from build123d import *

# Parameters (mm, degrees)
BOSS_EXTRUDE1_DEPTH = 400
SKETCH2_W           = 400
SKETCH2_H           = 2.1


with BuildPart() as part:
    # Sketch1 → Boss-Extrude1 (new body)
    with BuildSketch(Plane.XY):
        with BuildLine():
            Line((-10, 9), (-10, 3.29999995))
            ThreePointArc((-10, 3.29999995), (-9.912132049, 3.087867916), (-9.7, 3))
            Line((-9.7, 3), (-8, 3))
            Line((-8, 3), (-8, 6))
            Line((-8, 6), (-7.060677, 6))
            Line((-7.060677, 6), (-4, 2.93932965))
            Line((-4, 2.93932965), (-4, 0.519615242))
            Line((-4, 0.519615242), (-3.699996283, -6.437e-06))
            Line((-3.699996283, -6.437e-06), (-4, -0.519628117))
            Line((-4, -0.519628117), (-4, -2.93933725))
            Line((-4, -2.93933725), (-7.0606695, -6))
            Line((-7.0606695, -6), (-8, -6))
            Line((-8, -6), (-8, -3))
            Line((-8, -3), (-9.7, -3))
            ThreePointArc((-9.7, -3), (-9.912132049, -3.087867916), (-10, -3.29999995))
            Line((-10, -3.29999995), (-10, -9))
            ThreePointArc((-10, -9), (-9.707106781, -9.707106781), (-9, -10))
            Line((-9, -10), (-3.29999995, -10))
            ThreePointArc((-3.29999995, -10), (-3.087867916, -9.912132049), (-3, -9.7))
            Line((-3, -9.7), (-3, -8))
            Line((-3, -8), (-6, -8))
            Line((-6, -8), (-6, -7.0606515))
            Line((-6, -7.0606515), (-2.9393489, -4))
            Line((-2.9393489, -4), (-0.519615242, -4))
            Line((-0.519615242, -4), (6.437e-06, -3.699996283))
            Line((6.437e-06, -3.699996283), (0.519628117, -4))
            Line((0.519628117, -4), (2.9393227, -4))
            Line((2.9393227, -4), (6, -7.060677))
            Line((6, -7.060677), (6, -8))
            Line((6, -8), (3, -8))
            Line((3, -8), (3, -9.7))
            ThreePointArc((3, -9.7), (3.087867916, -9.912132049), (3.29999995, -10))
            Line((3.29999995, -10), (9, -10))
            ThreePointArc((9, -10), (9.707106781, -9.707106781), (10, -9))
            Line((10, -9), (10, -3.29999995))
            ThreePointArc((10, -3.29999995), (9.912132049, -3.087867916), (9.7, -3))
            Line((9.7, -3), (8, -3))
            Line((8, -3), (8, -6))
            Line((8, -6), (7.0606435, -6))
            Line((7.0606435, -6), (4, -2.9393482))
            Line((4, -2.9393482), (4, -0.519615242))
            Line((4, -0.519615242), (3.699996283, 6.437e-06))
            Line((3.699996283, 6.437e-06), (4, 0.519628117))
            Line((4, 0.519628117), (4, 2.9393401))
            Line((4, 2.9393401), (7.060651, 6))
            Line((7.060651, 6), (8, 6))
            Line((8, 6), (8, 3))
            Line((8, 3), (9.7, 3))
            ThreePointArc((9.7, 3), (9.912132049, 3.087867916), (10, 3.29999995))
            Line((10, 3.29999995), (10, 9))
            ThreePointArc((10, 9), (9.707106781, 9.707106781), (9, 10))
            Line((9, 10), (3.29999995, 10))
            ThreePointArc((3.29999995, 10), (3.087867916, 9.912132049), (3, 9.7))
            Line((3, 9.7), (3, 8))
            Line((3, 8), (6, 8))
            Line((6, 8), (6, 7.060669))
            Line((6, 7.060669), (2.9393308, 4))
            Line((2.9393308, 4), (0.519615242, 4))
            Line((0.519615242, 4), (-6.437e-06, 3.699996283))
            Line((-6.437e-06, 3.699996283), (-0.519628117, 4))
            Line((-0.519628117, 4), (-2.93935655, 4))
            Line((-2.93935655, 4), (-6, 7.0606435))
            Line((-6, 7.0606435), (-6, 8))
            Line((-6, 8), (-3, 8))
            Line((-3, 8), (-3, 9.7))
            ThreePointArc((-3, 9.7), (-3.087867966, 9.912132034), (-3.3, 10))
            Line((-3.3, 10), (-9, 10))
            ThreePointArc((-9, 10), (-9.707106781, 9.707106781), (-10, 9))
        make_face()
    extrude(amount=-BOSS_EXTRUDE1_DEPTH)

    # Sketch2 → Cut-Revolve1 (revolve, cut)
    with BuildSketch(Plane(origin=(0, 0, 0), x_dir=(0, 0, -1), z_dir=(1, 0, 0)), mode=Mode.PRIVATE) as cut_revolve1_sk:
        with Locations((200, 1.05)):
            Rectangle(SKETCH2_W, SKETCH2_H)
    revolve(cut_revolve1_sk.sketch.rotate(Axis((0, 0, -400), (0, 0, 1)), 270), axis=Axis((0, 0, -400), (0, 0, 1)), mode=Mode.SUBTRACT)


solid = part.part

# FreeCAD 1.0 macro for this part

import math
import FreeCAD as App
import Part
import Sketcher
from FreeCAD import Vector
Q = App.Units.Quantity

doc = App.newDocument("Part")
body = doc.addObject("PartDesign::Body", "Body")

# Sketch on XY plane
sketch1 = body.newObject("Sketcher::SketchObject", "Sketch")
sketch1.AttachmentSupport = (doc.getObject("XY_Plane"), [""])
sketch1.MapMode = "FlatFace"
sketch1.addGeometry(Part.LineSegment(Vector(-10, 9, 0), Vector(-10, 3.3, 0)), False)
sketch1.addGeometry(Part.ArcOfCircle(Part.Circle(Vector(-9.7, 3.3, 0), Vector(0, 0, 1), 0.3), math.radians(180), math.radians(270)), False)
sketch1.addGeometry(Part.LineSegment(Vector(-9.7, 3, 0), Vector(-8, 3, 0)), False)
sketch1.addGeometry(Part.LineSegment(Vector(-8, 3, 0), Vector(-8, 6, 0)), False)
sketch1.addGeometry(Part.LineSegment(Vector(-8, 6, 0), Vector(-7.06, 6, 0)), False)
sketch1.addGeometry(Part.LineSegment(Vector(-7.06, 6, 0), Vector(-4, 2.94, 0)), False)
sketch1.addGeometry(Part.LineSegment(Vector(-4, 2.94, 0), Vector(-4, 0.52, 0)), False)
sketch1.addGeometry(Part.LineSegment(Vector(-4, 0.52, 0), Vector(-3.7, 0, 0)), False)
sketch1.addGeometry(Part.LineSegment(Vector(-3.7, 0, 0), Vector(-4, -0.52, 0)), False)
sketch1.addGeometry(Part.LineSegment(Vector(-4, -0.52, 0), Vector(-4, -2.94, 0)), False)
sketch1.addGeometry(Part.LineSegment(Vector(-4, -2.94, 0), Vector(-7.06, -6, 0)), False)
sketch1.addGeometry(Part.LineSegment(Vector(-7.06, -6, 0), Vector(-8, -6, 0)), False)
sketch1.addGeometry(Part.LineSegment(Vector(-8, -6, 0), Vector(-8, -3, 0)), False)
sketch1.addGeometry(Part.LineSegment(Vector(-8, -3, 0), Vector(-9.7, -3, 0)), False)
sketch1.addGeometry(Part.ArcOfCircle(Part.Circle(Vector(-9.7, -3.3, 0), Vector(0, 0, 1), 0.3), math.radians(90), math.radians(180)), False)
sketch1.addGeometry(Part.LineSegment(Vector(-10, -3.3, 0), Vector(-10, -9, 0)), False)
sketch1.addGeometry(Part.ArcOfCircle(Part.Circle(Vector(-9, -9, 0), Vector(0, 0, 1), 1), math.radians(-180), math.radians(-90)), False)
sketch1.addGeometry(Part.LineSegment(Vector(-9, -10, 0), Vector(-3.3, -10, 0)), False)
sketch1.addGeometry(Part.ArcOfCircle(Part.Circle(Vector(-3.3, -9.7, 0), Vector(0, 0, 1), 0.3), math.radians(-90), math.radians(0)), False)
sketch1.addGeometry(Part.LineSegment(Vector(-3, -9.7, 0), Vector(-3, -8, 0)), False)
sketch1.addGeometry(Part.LineSegment(Vector(-3, -8, 0), Vector(-6, -8, 0)), False)
sketch1.addGeometry(Part.LineSegment(Vector(-6, -8, 0), Vector(-6, -7.06, 0)), False)
sketch1.addGeometry(Part.LineSegment(Vector(-6, -7.06, 0), Vector(-2.94, -4, 0)), False)
sketch1.addGeometry(Part.LineSegment(Vector(-2.94, -4, 0), Vector(-0.52, -4, 0)), False)
sketch1.addGeometry(Part.LineSegment(Vector(-0.52, -4, 0), Vector(0, -3.7, 0)), False)
sketch1.addGeometry(Part.LineSegment(Vector(0, -3.7, 0), Vector(0.52, -4, 0)), False)
sketch1.addGeometry(Part.LineSegment(Vector(0.52, -4, 0), Vector(2.94, -4, 0)), False)
sketch1.addGeometry(Part.LineSegment(Vector(2.94, -4, 0), Vector(6, -7.06, 0)), False)
sketch1.addGeometry(Part.LineSegment(Vector(6, -7.06, 0), Vector(6, -8, 0)), False)
sketch1.addGeometry(Part.LineSegment(Vector(6, -8, 0), Vector(3, -8, 0)), False)
sketch1.addGeometry(Part.LineSegment(Vector(3, -8, 0), Vector(3, -9.7, 0)), False)
sketch1.addGeometry(Part.ArcOfCircle(Part.Circle(Vector(3.3, -9.7, 0), Vector(0, 0, 1), 0.3), math.radians(180), math.radians(270)), False)
sketch1.addGeometry(Part.LineSegment(Vector(3.3, -10, 0), Vector(9, -10, 0)), False)
sketch1.addGeometry(Part.ArcOfCircle(Part.Circle(Vector(9, -9, 0), Vector(0, 0, 1), 1), math.radians(-90), math.radians(0)), False)
sketch1.addGeometry(Part.LineSegment(Vector(10, -9, 0), Vector(10, -3.3, 0)), False)
sketch1.addGeometry(Part.ArcOfCircle(Part.Circle(Vector(9.7, -3.3, 0), Vector(0, 0, 1), 0.3), math.radians(0), math.radians(90)), False)
sketch1.addGeometry(Part.LineSegment(Vector(9.7, -3, 0), Vector(8, -3, 0)), False)
sketch1.addGeometry(Part.LineSegment(Vector(8, -3, 0), Vector(8, -6, 0)), False)
sketch1.addGeometry(Part.LineSegment(Vector(8, -6, 0), Vector(7.06, -6, 0)), False)
sketch1.addGeometry(Part.LineSegment(Vector(7.06, -6, 0), Vector(4, -2.94, 0)), False)
sketch1.addGeometry(Part.LineSegment(Vector(4, -2.94, 0), Vector(4, -0.52, 0)), False)
sketch1.addGeometry(Part.LineSegment(Vector(4, -0.52, 0), Vector(3.7, 0, 0)), False)
sketch1.addGeometry(Part.LineSegment(Vector(3.7, 0, 0), Vector(4, 0.52, 0)), False)
sketch1.addGeometry(Part.LineSegment(Vector(4, 0.52, 0), Vector(4, 2.94, 0)), False)
sketch1.addGeometry(Part.LineSegment(Vector(4, 2.94, 0), Vector(7.06, 6, 0)), False)
sketch1.addGeometry(Part.LineSegment(Vector(7.06, 6, 0), Vector(8, 6, 0)), False)
sketch1.addGeometry(Part.LineSegment(Vector(8, 6, 0), Vector(8, 3, 0)), False)
sketch1.addGeometry(Part.LineSegment(Vector(8, 3, 0), Vector(9.7, 3, 0)), False)
sketch1.addGeometry(Part.ArcOfCircle(Part.Circle(Vector(9.7, 3.3, 0), Vector(0, 0, 1), 0.3), math.radians(-90), math.radians(0)), False)
sketch1.addGeometry(Part.LineSegment(Vector(10, 3.3, 0), Vector(10, 9, 0)), False)
sketch1.addGeometry(Part.ArcOfCircle(Part.Circle(Vector(9, 9, 0), Vector(0, 0, 1), 1), math.radians(0), math.radians(90)), False)
sketch1.addGeometry(Part.LineSegment(Vector(9, 10, 0), Vector(3.3, 10, 0)), False)
sketch1.addGeometry(Part.ArcOfCircle(Part.Circle(Vector(3.3, 9.7, 0), Vector(0, 0, 1), 0.3), math.radians(90), math.radians(180)), False)
sketch1.addGeometry(Part.LineSegment(Vector(3, 9.7, 0), Vector(3, 8, 0)), False)
sketch1.addGeometry(Part.LineSegment(Vector(3, 8, 0), Vector(6, 8, 0)), False)
sketch1.addGeometry(Part.LineSegment(Vector(6, 8, 0), Vector(6, 7.06, 0)), False)
sketch1.addGeometry(Part.LineSegment(Vector(6, 7.06, 0), Vector(2.94, 4, 0)), False)
sketch1.addGeometry(Part.LineSegment(Vector(2.94, 4, 0), Vector(0.52, 4, 0)), False)
sketch1.addGeometry(Part.LineSegment(Vector(0.52, 4, 0), Vector(0, 3.7, 0)), False)
sketch1.addGeometry(Part.LineSegment(Vector(0, 3.7, 0), Vector(-0.52, 4, 0)), False)
sketch1.addGeometry(Part.LineSegment(Vector(-0.52, 4, 0), Vector(-2.94, 4, 0)), False)
sketch1.addGeometry(Part.LineSegment(Vector(-2.94, 4, 0), Vector(-6, 7.06, 0)), False)
sketch1.addGeometry(Part.LineSegment(Vector(-6, 7.06, 0), Vector(-6, 8, 0)), False)
sketch1.addGeometry(Part.LineSegment(Vector(-6, 8, 0), Vector(-3, 8, 0)), False)
sketch1.addGeometry(Part.LineSegment(Vector(-3, 8, 0), Vector(-3, 9.7, 0)), False)
sketch1.addGeometry(Part.ArcOfCircle(Part.Circle(Vector(-3.3, 9.7, 0), Vector(0, 0, 1), 0.3), math.radians(0), math.radians(90)), False)
sketch1.addGeometry(Part.LineSegment(Vector(-3.3, 10, 0), Vector(-9, 10, 0)), False)
sketch1.addGeometry(Part.ArcOfCircle(Part.Circle(Vector(-9, 9, 0), Vector(0, 0, 1), 1), math.radians(90), math.radians(180)), False)
sketch1.addConstraint(Sketcher.Constraint("Tangent", 0, 2, 1, 1))
sketch1.addConstraint(Sketcher.Constraint("Tangent", 1, 2, 2, 1))
sketch1.addConstraint(Sketcher.Constraint("Coincident", 2, 2, 3, 1))
sketch1.addConstraint(Sketcher.Constraint("Coincident", 3, 2, 4, 1))
sketch1.addConstraint(Sketcher.Constraint("Coincident", 4, 2, 5, 1))
sketch1.addConstraint(Sketcher.Constraint("Coincident", 5, 2, 6, 1))
sketch1.addConstraint(Sketcher.Constraint("Coincident", 6, 2, 7, 1))
sketch1.addConstraint(Sketcher.Constraint("Coincident", 7, 2, 8, 1))
sketch1.addConstraint(Sketcher.Constraint("Coincident", 8, 2, 9, 1))
sketch1.addConstraint(Sketcher.Constraint("Coincident", 9, 2, 10, 1))
sketch1.addConstraint(Sketcher.Constraint("Coincident", 10, 2, 11, 1))
sketch1.addConstraint(Sketcher.Constraint("Coincident", 11, 2, 12, 1))
sketch1.addConstraint(Sketcher.Constraint("Coincident", 12, 2, 13, 1))
sketch1.addConstraint(Sketcher.Constraint("Tangent", 13, 2, 14, 1))
sketch1.addConstraint(Sketcher.Constraint("Tangent", 14, 2, 15, 1))
sketch1.addConstraint(Sketcher.Constraint("Tangent", 15, 2, 16, 1))
sketch1.addConstraint(Sketcher.Constraint("Tangent", 16, 2, 17, 1))
sketch1.addConstraint(Sketcher.Constraint("Tangent", 17, 2, 18, 1))
sketch1.addConstraint(Sketcher.Constraint("Tangent", 18, 2, 19, 1))
sketch1.addConstraint(Sketcher.Constraint("Coincident", 19, 2, 20, 1))
sketch1.addConstraint(Sketcher.Constraint("Coincident", 20, 2, 21, 1))
sketch1.addConstraint(Sketcher.Constraint("Coincident", 21, 2, 22, 1))
sketch1.addConstraint(Sketcher.Constraint("Coincident", 22, 2, 23, 1))
sketch1.addConstraint(Sketcher.Constraint("Coincident", 23, 2, 24, 1))
sketch1.addConstraint(Sketcher.Constraint("Coincident", 24, 2, 25, 1))
sketch1.addConstraint(Sketcher.Constraint("Coincident", 25, 2, 26, 1))
sketch1.addConstraint(Sketcher.Constraint("Coincident", 26, 2, 27, 1))
sketch1.addConstraint(Sketcher.Constraint("Coincident", 27, 2, 28, 1))
sketch1.addConstraint(Sketcher.Constraint("Coincident", 28, 2, 29, 1))
sketch1.addConstraint(Sketcher.Constraint("Coincident", 29, 2, 30, 1))
sketch1.addConstraint(Sketcher.Constraint("Tangent", 30, 2, 31, 1))
sketch1.addConstraint(Sketcher.Constraint("Tangent", 31, 2, 32, 1))
sketch1.addConstraint(Sketcher.Constraint("Tangent", 32, 2, 33, 1))
sketch1.addConstraint(Sketcher.Constraint("Tangent", 33, 2, 34, 1))
sketch1.addConstraint(Sketcher.Constraint("Tangent", 34, 2, 35, 1))
sketch1.addConstraint(Sketcher.Constraint("Tangent", 35, 2, 36, 1))
sketch1.addConstraint(Sketcher.Constraint("Coincident", 36, 2, 37, 1))
sketch1.addConstraint(Sketcher.Constraint("Coincident", 37, 2, 38, 1))
sketch1.addConstraint(Sketcher.Constraint("Coincident", 38, 2, 39, 1))
sketch1.addConstraint(Sketcher.Constraint("Coincident", 39, 2, 40, 1))
sketch1.addConstraint(Sketcher.Constraint("Coincident", 40, 2, 41, 1))
sketch1.addConstraint(Sketcher.Constraint("Coincident", 41, 2, 42, 1))
sketch1.addConstraint(Sketcher.Constraint("Coincident", 42, 2, 43, 1))
sketch1.addConstraint(Sketcher.Constraint("Coincident", 43, 2, 44, 1))
sketch1.addConstraint(Sketcher.Constraint("Coincident", 44, 2, 45, 1))
sketch1.addConstraint(Sketcher.Constraint("Coincident", 45, 2, 46, 1))
sketch1.addConstraint(Sketcher.Constraint("Coincident", 46, 2, 47, 1))
sketch1.addConstraint(Sketcher.Constraint("Tangent", 47, 2, 48, 1))
sketch1.addConstraint(Sketcher.Constraint("Tangent", 48, 2, 49, 1))
sketch1.addConstraint(Sketcher.Constraint("Tangent", 49, 2, 50, 1))
sketch1.addConstraint(Sketcher.Constraint("Tangent", 50, 2, 51, 1))
sketch1.addConstraint(Sketcher.Constraint("Tangent", 51, 2, 52, 1))
sketch1.addConstraint(Sketcher.Constraint("Tangent", 52, 2, 53, 1))
sketch1.addConstraint(Sketcher.Constraint("Coincident", 53, 2, 54, 1))
sketch1.addConstraint(Sketcher.Constraint("Coincident", 54, 2, 55, 1))
sketch1.addConstraint(Sketcher.Constraint("Coincident", 55, 2, 56, 1))
sketch1.addConstraint(Sketcher.Constraint("Coincident", 56, 2, 57, 1))
sketch1.addConstraint(Sketcher.Constraint("Coincident", 57, 2, 58, 1))
sketch1.addConstraint(Sketcher.Constraint("Coincident", 58, 2, 59, 1))
sketch1.addConstraint(Sketcher.Constraint("Coincident", 59, 2, 60, 1))
sketch1.addConstraint(Sketcher.Constraint("Coincident", 60, 2, 61, 1))
sketch1.addConstraint(Sketcher.Constraint("Coincident", 61, 2, 62, 1))
sketch1.addConstraint(Sketcher.Constraint("Coincident", 62, 2, 63, 1))
sketch1.addConstraint(Sketcher.Constraint("Coincident", 63, 2, 64, 1))
sketch1.addConstraint(Sketcher.Constraint("Tangent", 64, 2, 65, 1))
sketch1.addConstraint(Sketcher.Constraint("Tangent", 65, 2, 66, 1))
sketch1.addConstraint(Sketcher.Constraint("Tangent", 66, 2, 67, 1))
sketch1.addConstraint(Sketcher.Constraint("Tangent", 67, 2, 0, 1))
sketch1.addConstraint(Sketcher.Constraint("Vertical", 0))
sketch1.addConstraint(Sketcher.Constraint("Horizontal", 2))
sketch1.addConstraint(Sketcher.Constraint("Vertical", 3))
sketch1.addConstraint(Sketcher.Constraint("Horizontal", 4))
sketch1.addConstraint(Sketcher.Constraint("Vertical", 6))
sketch1.addConstraint(Sketcher.Constraint("Vertical", 9))
sketch1.addConstraint(Sketcher.Constraint("Horizontal", 11))
sketch1.addConstraint(Sketcher.Constraint("Vertical", 12))
sketch1.addConstraint(Sketcher.Constraint("Horizontal", 13))
sketch1.addConstraint(Sketcher.Constraint("Vertical", 15))
sketch1.addConstraint(Sketcher.Constraint("Horizontal", 17))
sketch1.addConstraint(Sketcher.Constraint("Vertical", 19))
sketch1.addConstraint(Sketcher.Constraint("Horizontal", 20))
sketch1.addConstraint(Sketcher.Constraint("Vertical", 21))
sketch1.addConstraint(Sketcher.Constraint("Horizontal", 23))
sketch1.addConstraint(Sketcher.Constraint("Horizontal", 26))
sketch1.addConstraint(Sketcher.Constraint("Vertical", 28))
sketch1.addConstraint(Sketcher.Constraint("Horizontal", 29))
sketch1.addConstraint(Sketcher.Constraint("Vertical", 30))
sketch1.addConstraint(Sketcher.Constraint("Horizontal", 32))
sketch1.addConstraint(Sketcher.Constraint("Vertical", 34))
sketch1.addConstraint(Sketcher.Constraint("Horizontal", 36))
sketch1.addConstraint(Sketcher.Constraint("Vertical", 37))
sketch1.addConstraint(Sketcher.Constraint("Horizontal", 38))
sketch1.addConstraint(Sketcher.Constraint("Vertical", 40))
sketch1.addConstraint(Sketcher.Constraint("Vertical", 43))
sketch1.addConstraint(Sketcher.Constraint("Horizontal", 45))
sketch1.addConstraint(Sketcher.Constraint("Vertical", 46))
sketch1.addConstraint(Sketcher.Constraint("Horizontal", 47))
sketch1.addConstraint(Sketcher.Constraint("Vertical", 49))
sketch1.addConstraint(Sketcher.Constraint("Horizontal", 51))
sketch1.addConstraint(Sketcher.Constraint("Vertical", 53))
sketch1.addConstraint(Sketcher.Constraint("Horizontal", 54))
sketch1.addConstraint(Sketcher.Constraint("Vertical", 55))
sketch1.addConstraint(Sketcher.Constraint("Horizontal", 57))
sketch1.addConstraint(Sketcher.Constraint("Horizontal", 60))
sketch1.addConstraint(Sketcher.Constraint("Vertical", 62))
sketch1.addConstraint(Sketcher.Constraint("Horizontal", 63))
sketch1.addConstraint(Sketcher.Constraint("Vertical", 64))
sketch1.addConstraint(Sketcher.Constraint("Horizontal", 66))
sketch1.addConstraint(Sketcher.Constraint("Equal", 1, 14))
sketch1.addConstraint(Sketcher.Constraint("Equal", 14, 18))
sketch1.addConstraint(Sketcher.Constraint("Equal", 18, 31))
sketch1.addConstraint(Sketcher.Constraint("Equal", 16, 33))
sketch1.addConstraint(Sketcher.Constraint("Equal", 31, 35))
sketch1.addConstraint(Sketcher.Constraint("Equal", 35, 48))
sketch1.addConstraint(Sketcher.Constraint("Equal", 33, 50))
sketch1.addConstraint(Sketcher.Constraint("Equal", 48, 52))
sketch1.addConstraint(Sketcher.Constraint("Equal", 52, 65))
sketch1.addConstraint(Sketcher.Constraint("Equal", 50, 67))
sketch1.addConstraint(Sketcher.Constraint("Symmetric", 1, 3, 35, 3, -1, 1))
sketch1.addConstraint(Sketcher.Constraint("Symmetric", 14, 3, 48, 3, -1, 1))
sketch1.addConstraint(Sketcher.Constraint("Symmetric", 18, 3, 52, 3, -1, 1))
sketch1.addConstraint(Sketcher.Constraint("Symmetric", 31, 3, 65, 3, -1, 1))
sketch1.addConstraint(Sketcher.Constraint("Symmetric", 3, 2, 37, 2, -1, 1))
sketch1.addConstraint(Sketcher.Constraint("Symmetric", 6, 2, 40, 2, -1, 1))
sketch1.addConstraint(Sketcher.Constraint("Symmetric", 7, 2, 41, 2, -1, 1))
sketch1.addConstraint(Sketcher.Constraint("Symmetric", 8, 2, 42, 2, -1, 1))
sketch1.addConstraint(Sketcher.Constraint("Symmetric", 11, 2, 45, 2, -1, 1))
sketch1.addConstraint(Sketcher.Constraint("Symmetric", 20, 2, 54, 2, -1, 1))
sketch1.addConstraint(Sketcher.Constraint("Symmetric", 23, 2, 57, 2, -1, 1))
sketch1.addConstraint(Sketcher.Constraint("Symmetric", 24, 2, 58, 2, -1, 1))
sketch1.addConstraint(Sketcher.Constraint("Symmetric", 25, 2, 59, 2, -1, 1))
sketch1.addConstraint(Sketcher.Constraint("Symmetric", 28, 2, 62, 2, -1, 1))
sketch1.addConstraint(Sketcher.Constraint("Symmetric", 18, 3, 31, 3, -2))
sketch1.addConstraint(Sketcher.Constraint("Symmetric", 14, 3, 35, 3, -2))
sketch1.addConstraint(Sketcher.Constraint("Symmetric", 20, 2, 28, 2, -2))
sketch1.addConstraint(Sketcher.Constraint("Symmetric", 11, 2, 37, 2, -2))
sketch1.addConstraint(Sketcher.Constraint("Symmetric", 5, 2, 9, 2, -1))
sketch1.addConstraint(Sketcher.Constraint("Symmetric", 26, 2, 56, 2, -1))
sketch1.addConstraint(Sketcher.Constraint("Parallel", 10, 22))
sketch1.addConstraint(Sketcher.Constraint("Perpendicular", 7, 24))
sketch1.addConstraint(Sketcher.Constraint("Perpendicular", 8, 25))
sketch1.addConstraint(Sketcher.Constraint("Perpendicular", 22, 27))
sketch1.addConstraint(Sketcher.Constraint("Parallel", 27, 39))
sketch1.addConstraint(Sketcher.Constraint("Perpendicular", 27, 44))
sketch1.addConstraint(Sketcher.Constraint("Parallel", 44, 56))
sketch1.addConstraint(Sketcher.Constraint("Perpendicular", 56, 61))
sketch1.addConstraint(Sketcher.Constraint("Equal", 66, 0))
sketch1.addConstraint(Sketcher.Constraint("Equal", 63, 3))
sketch1.addConstraint(Sketcher.Constraint("Equal", 57, 6))
sketch1.addConstraint(Sketcher.Constraint("Equal", 47, 19))
sketch1.addConstraint(Sketcher.Constraint("Equal", 45, 21))
sketch1.addConstraint(Sketcher.Constraint("Equal", 4, 28))
sketch1.addConstraint(Sketcher.Constraint("Equal", 23, 40))
sketch1.addConstraint(Sketcher.Constraint("Equal", 11, 55))
sketch1.addConstraint(Sketcher.Constraint("Equal", 38, 62))
sketch1.addConstraint(Sketcher.Constraint("Equal", 7, 8))
sketch1.addConstraint(Sketcher.Constraint("Equal", 8, 24))
sketch1.addConstraint(Sketcher.Constraint("Radius", 16, 1.0))
sketch1.addConstraint(Sketcher.Constraint("Radius", 1, 0.3))
sketch1.addConstraint(Sketcher.Constraint("DistanceX", 20, 2, 20, 1, 3.0))
sketch1.addConstraint(Sketcher.Constraint("Angle", 7, Q("-60 deg")))
sketch1.addConstraint(Sketcher.Constraint("Angle", 22, Q("45.000004 deg")))
sketch1.addConstraint(Sketcher.Constraint("DistanceX", 2, 1, 2, 2, 1.7))
sketch1.addConstraint(Sketcher.Constraint("DistanceX", 17, 1, 17, 2, 5.7))
sketch1.addConstraint(Sketcher.Constraint("DistanceX", 16, 3, -1, 1, 9.0))
sketch1.addConstraint(Sketcher.Constraint("DistanceY", 16, 3, -1, 1, 9.0))
sketch1.addConstraint(Sketcher.Constraint("DistanceX", 5, 2, -1, 1, 4.0))
sketch1.addConstraint(Sketcher.Constraint("DistanceY", 22, 2, -1, 1, 4.0))
sketch1.addConstraint(Sketcher.Constraint("DistanceX", 11, 2, 11, 1, 0.93933))
sketch1.addConstraint(Sketcher.Constraint("DistanceX", 45, 1, 45, 2, 0.939349))
sketch1.addConstraint(Sketcher.Constraint("DistanceX", 60, 2, 60, 1, 2.419728))
sketch1.addConstraint(Sketcher.Constraint("DistanceX", 23, 1, 23, 2, 2.419734))
pad1 = body.newObject("PartDesign::Pad", "Pad")
pad1.Profile = sketch1
pad1.Length = 400
pad1.Reversed = True

# Sketch on YZ plane
sketch2 = body.newObject("Sketcher::SketchObject", "Sketch001")
sketch2.AttachmentSupport = (doc.getObject("YZ_Plane"), [""])
sketch2.MapMode = "FlatFace"
sketch2.addGeometry(Part.LineSegment(Vector(2.1, 0, 0), Vector(0, 0, 0)), False)
sketch2.addGeometry(Part.LineSegment(Vector(0, 0, 0), Vector(0, -400, 0)), False)
sketch2.addGeometry(Part.LineSegment(Vector(0, -400, 0), Vector(2.1, -400, 0)), False)
sketch2.addGeometry(Part.LineSegment(Vector(2.1, -400, 0), Vector(2.1, 0, 0)), False)
sketch2.addConstraint(Sketcher.Constraint("Coincident", 0, 2, 1, 1))
sketch2.addConstraint(Sketcher.Constraint("Coincident", 1, 2, 2, 1))
sketch2.addConstraint(Sketcher.Constraint("Coincident", 2, 2, 3, 1))
sketch2.addConstraint(Sketcher.Constraint("Coincident", 3, 2, 0, 1))
sketch2.addConstraint(Sketcher.Constraint("Horizontal", 0))
sketch2.addConstraint(Sketcher.Constraint("Vertical", 1))
sketch2.addConstraint(Sketcher.Constraint("Horizontal", 2))
sketch2.addConstraint(Sketcher.Constraint("Vertical", 3))
sketch2.addConstraint(Sketcher.Constraint("Coincident", 0, 2, -1, 1))
sketch2.addConstraint(Sketcher.Constraint("DistanceY", 1, 2, 1, 1, 400.0))
sketch2.addConstraint(Sketcher.Constraint("DistanceX", 0, 2, 0, 1, 2.1))
groove = body.newObject("PartDesign::Groove", "Groove")
groove.Profile = sketch2
groove.ReferenceAxis = (sketch2, ["V_Axis"])
groove.Angle = 360

doc.recompute()
